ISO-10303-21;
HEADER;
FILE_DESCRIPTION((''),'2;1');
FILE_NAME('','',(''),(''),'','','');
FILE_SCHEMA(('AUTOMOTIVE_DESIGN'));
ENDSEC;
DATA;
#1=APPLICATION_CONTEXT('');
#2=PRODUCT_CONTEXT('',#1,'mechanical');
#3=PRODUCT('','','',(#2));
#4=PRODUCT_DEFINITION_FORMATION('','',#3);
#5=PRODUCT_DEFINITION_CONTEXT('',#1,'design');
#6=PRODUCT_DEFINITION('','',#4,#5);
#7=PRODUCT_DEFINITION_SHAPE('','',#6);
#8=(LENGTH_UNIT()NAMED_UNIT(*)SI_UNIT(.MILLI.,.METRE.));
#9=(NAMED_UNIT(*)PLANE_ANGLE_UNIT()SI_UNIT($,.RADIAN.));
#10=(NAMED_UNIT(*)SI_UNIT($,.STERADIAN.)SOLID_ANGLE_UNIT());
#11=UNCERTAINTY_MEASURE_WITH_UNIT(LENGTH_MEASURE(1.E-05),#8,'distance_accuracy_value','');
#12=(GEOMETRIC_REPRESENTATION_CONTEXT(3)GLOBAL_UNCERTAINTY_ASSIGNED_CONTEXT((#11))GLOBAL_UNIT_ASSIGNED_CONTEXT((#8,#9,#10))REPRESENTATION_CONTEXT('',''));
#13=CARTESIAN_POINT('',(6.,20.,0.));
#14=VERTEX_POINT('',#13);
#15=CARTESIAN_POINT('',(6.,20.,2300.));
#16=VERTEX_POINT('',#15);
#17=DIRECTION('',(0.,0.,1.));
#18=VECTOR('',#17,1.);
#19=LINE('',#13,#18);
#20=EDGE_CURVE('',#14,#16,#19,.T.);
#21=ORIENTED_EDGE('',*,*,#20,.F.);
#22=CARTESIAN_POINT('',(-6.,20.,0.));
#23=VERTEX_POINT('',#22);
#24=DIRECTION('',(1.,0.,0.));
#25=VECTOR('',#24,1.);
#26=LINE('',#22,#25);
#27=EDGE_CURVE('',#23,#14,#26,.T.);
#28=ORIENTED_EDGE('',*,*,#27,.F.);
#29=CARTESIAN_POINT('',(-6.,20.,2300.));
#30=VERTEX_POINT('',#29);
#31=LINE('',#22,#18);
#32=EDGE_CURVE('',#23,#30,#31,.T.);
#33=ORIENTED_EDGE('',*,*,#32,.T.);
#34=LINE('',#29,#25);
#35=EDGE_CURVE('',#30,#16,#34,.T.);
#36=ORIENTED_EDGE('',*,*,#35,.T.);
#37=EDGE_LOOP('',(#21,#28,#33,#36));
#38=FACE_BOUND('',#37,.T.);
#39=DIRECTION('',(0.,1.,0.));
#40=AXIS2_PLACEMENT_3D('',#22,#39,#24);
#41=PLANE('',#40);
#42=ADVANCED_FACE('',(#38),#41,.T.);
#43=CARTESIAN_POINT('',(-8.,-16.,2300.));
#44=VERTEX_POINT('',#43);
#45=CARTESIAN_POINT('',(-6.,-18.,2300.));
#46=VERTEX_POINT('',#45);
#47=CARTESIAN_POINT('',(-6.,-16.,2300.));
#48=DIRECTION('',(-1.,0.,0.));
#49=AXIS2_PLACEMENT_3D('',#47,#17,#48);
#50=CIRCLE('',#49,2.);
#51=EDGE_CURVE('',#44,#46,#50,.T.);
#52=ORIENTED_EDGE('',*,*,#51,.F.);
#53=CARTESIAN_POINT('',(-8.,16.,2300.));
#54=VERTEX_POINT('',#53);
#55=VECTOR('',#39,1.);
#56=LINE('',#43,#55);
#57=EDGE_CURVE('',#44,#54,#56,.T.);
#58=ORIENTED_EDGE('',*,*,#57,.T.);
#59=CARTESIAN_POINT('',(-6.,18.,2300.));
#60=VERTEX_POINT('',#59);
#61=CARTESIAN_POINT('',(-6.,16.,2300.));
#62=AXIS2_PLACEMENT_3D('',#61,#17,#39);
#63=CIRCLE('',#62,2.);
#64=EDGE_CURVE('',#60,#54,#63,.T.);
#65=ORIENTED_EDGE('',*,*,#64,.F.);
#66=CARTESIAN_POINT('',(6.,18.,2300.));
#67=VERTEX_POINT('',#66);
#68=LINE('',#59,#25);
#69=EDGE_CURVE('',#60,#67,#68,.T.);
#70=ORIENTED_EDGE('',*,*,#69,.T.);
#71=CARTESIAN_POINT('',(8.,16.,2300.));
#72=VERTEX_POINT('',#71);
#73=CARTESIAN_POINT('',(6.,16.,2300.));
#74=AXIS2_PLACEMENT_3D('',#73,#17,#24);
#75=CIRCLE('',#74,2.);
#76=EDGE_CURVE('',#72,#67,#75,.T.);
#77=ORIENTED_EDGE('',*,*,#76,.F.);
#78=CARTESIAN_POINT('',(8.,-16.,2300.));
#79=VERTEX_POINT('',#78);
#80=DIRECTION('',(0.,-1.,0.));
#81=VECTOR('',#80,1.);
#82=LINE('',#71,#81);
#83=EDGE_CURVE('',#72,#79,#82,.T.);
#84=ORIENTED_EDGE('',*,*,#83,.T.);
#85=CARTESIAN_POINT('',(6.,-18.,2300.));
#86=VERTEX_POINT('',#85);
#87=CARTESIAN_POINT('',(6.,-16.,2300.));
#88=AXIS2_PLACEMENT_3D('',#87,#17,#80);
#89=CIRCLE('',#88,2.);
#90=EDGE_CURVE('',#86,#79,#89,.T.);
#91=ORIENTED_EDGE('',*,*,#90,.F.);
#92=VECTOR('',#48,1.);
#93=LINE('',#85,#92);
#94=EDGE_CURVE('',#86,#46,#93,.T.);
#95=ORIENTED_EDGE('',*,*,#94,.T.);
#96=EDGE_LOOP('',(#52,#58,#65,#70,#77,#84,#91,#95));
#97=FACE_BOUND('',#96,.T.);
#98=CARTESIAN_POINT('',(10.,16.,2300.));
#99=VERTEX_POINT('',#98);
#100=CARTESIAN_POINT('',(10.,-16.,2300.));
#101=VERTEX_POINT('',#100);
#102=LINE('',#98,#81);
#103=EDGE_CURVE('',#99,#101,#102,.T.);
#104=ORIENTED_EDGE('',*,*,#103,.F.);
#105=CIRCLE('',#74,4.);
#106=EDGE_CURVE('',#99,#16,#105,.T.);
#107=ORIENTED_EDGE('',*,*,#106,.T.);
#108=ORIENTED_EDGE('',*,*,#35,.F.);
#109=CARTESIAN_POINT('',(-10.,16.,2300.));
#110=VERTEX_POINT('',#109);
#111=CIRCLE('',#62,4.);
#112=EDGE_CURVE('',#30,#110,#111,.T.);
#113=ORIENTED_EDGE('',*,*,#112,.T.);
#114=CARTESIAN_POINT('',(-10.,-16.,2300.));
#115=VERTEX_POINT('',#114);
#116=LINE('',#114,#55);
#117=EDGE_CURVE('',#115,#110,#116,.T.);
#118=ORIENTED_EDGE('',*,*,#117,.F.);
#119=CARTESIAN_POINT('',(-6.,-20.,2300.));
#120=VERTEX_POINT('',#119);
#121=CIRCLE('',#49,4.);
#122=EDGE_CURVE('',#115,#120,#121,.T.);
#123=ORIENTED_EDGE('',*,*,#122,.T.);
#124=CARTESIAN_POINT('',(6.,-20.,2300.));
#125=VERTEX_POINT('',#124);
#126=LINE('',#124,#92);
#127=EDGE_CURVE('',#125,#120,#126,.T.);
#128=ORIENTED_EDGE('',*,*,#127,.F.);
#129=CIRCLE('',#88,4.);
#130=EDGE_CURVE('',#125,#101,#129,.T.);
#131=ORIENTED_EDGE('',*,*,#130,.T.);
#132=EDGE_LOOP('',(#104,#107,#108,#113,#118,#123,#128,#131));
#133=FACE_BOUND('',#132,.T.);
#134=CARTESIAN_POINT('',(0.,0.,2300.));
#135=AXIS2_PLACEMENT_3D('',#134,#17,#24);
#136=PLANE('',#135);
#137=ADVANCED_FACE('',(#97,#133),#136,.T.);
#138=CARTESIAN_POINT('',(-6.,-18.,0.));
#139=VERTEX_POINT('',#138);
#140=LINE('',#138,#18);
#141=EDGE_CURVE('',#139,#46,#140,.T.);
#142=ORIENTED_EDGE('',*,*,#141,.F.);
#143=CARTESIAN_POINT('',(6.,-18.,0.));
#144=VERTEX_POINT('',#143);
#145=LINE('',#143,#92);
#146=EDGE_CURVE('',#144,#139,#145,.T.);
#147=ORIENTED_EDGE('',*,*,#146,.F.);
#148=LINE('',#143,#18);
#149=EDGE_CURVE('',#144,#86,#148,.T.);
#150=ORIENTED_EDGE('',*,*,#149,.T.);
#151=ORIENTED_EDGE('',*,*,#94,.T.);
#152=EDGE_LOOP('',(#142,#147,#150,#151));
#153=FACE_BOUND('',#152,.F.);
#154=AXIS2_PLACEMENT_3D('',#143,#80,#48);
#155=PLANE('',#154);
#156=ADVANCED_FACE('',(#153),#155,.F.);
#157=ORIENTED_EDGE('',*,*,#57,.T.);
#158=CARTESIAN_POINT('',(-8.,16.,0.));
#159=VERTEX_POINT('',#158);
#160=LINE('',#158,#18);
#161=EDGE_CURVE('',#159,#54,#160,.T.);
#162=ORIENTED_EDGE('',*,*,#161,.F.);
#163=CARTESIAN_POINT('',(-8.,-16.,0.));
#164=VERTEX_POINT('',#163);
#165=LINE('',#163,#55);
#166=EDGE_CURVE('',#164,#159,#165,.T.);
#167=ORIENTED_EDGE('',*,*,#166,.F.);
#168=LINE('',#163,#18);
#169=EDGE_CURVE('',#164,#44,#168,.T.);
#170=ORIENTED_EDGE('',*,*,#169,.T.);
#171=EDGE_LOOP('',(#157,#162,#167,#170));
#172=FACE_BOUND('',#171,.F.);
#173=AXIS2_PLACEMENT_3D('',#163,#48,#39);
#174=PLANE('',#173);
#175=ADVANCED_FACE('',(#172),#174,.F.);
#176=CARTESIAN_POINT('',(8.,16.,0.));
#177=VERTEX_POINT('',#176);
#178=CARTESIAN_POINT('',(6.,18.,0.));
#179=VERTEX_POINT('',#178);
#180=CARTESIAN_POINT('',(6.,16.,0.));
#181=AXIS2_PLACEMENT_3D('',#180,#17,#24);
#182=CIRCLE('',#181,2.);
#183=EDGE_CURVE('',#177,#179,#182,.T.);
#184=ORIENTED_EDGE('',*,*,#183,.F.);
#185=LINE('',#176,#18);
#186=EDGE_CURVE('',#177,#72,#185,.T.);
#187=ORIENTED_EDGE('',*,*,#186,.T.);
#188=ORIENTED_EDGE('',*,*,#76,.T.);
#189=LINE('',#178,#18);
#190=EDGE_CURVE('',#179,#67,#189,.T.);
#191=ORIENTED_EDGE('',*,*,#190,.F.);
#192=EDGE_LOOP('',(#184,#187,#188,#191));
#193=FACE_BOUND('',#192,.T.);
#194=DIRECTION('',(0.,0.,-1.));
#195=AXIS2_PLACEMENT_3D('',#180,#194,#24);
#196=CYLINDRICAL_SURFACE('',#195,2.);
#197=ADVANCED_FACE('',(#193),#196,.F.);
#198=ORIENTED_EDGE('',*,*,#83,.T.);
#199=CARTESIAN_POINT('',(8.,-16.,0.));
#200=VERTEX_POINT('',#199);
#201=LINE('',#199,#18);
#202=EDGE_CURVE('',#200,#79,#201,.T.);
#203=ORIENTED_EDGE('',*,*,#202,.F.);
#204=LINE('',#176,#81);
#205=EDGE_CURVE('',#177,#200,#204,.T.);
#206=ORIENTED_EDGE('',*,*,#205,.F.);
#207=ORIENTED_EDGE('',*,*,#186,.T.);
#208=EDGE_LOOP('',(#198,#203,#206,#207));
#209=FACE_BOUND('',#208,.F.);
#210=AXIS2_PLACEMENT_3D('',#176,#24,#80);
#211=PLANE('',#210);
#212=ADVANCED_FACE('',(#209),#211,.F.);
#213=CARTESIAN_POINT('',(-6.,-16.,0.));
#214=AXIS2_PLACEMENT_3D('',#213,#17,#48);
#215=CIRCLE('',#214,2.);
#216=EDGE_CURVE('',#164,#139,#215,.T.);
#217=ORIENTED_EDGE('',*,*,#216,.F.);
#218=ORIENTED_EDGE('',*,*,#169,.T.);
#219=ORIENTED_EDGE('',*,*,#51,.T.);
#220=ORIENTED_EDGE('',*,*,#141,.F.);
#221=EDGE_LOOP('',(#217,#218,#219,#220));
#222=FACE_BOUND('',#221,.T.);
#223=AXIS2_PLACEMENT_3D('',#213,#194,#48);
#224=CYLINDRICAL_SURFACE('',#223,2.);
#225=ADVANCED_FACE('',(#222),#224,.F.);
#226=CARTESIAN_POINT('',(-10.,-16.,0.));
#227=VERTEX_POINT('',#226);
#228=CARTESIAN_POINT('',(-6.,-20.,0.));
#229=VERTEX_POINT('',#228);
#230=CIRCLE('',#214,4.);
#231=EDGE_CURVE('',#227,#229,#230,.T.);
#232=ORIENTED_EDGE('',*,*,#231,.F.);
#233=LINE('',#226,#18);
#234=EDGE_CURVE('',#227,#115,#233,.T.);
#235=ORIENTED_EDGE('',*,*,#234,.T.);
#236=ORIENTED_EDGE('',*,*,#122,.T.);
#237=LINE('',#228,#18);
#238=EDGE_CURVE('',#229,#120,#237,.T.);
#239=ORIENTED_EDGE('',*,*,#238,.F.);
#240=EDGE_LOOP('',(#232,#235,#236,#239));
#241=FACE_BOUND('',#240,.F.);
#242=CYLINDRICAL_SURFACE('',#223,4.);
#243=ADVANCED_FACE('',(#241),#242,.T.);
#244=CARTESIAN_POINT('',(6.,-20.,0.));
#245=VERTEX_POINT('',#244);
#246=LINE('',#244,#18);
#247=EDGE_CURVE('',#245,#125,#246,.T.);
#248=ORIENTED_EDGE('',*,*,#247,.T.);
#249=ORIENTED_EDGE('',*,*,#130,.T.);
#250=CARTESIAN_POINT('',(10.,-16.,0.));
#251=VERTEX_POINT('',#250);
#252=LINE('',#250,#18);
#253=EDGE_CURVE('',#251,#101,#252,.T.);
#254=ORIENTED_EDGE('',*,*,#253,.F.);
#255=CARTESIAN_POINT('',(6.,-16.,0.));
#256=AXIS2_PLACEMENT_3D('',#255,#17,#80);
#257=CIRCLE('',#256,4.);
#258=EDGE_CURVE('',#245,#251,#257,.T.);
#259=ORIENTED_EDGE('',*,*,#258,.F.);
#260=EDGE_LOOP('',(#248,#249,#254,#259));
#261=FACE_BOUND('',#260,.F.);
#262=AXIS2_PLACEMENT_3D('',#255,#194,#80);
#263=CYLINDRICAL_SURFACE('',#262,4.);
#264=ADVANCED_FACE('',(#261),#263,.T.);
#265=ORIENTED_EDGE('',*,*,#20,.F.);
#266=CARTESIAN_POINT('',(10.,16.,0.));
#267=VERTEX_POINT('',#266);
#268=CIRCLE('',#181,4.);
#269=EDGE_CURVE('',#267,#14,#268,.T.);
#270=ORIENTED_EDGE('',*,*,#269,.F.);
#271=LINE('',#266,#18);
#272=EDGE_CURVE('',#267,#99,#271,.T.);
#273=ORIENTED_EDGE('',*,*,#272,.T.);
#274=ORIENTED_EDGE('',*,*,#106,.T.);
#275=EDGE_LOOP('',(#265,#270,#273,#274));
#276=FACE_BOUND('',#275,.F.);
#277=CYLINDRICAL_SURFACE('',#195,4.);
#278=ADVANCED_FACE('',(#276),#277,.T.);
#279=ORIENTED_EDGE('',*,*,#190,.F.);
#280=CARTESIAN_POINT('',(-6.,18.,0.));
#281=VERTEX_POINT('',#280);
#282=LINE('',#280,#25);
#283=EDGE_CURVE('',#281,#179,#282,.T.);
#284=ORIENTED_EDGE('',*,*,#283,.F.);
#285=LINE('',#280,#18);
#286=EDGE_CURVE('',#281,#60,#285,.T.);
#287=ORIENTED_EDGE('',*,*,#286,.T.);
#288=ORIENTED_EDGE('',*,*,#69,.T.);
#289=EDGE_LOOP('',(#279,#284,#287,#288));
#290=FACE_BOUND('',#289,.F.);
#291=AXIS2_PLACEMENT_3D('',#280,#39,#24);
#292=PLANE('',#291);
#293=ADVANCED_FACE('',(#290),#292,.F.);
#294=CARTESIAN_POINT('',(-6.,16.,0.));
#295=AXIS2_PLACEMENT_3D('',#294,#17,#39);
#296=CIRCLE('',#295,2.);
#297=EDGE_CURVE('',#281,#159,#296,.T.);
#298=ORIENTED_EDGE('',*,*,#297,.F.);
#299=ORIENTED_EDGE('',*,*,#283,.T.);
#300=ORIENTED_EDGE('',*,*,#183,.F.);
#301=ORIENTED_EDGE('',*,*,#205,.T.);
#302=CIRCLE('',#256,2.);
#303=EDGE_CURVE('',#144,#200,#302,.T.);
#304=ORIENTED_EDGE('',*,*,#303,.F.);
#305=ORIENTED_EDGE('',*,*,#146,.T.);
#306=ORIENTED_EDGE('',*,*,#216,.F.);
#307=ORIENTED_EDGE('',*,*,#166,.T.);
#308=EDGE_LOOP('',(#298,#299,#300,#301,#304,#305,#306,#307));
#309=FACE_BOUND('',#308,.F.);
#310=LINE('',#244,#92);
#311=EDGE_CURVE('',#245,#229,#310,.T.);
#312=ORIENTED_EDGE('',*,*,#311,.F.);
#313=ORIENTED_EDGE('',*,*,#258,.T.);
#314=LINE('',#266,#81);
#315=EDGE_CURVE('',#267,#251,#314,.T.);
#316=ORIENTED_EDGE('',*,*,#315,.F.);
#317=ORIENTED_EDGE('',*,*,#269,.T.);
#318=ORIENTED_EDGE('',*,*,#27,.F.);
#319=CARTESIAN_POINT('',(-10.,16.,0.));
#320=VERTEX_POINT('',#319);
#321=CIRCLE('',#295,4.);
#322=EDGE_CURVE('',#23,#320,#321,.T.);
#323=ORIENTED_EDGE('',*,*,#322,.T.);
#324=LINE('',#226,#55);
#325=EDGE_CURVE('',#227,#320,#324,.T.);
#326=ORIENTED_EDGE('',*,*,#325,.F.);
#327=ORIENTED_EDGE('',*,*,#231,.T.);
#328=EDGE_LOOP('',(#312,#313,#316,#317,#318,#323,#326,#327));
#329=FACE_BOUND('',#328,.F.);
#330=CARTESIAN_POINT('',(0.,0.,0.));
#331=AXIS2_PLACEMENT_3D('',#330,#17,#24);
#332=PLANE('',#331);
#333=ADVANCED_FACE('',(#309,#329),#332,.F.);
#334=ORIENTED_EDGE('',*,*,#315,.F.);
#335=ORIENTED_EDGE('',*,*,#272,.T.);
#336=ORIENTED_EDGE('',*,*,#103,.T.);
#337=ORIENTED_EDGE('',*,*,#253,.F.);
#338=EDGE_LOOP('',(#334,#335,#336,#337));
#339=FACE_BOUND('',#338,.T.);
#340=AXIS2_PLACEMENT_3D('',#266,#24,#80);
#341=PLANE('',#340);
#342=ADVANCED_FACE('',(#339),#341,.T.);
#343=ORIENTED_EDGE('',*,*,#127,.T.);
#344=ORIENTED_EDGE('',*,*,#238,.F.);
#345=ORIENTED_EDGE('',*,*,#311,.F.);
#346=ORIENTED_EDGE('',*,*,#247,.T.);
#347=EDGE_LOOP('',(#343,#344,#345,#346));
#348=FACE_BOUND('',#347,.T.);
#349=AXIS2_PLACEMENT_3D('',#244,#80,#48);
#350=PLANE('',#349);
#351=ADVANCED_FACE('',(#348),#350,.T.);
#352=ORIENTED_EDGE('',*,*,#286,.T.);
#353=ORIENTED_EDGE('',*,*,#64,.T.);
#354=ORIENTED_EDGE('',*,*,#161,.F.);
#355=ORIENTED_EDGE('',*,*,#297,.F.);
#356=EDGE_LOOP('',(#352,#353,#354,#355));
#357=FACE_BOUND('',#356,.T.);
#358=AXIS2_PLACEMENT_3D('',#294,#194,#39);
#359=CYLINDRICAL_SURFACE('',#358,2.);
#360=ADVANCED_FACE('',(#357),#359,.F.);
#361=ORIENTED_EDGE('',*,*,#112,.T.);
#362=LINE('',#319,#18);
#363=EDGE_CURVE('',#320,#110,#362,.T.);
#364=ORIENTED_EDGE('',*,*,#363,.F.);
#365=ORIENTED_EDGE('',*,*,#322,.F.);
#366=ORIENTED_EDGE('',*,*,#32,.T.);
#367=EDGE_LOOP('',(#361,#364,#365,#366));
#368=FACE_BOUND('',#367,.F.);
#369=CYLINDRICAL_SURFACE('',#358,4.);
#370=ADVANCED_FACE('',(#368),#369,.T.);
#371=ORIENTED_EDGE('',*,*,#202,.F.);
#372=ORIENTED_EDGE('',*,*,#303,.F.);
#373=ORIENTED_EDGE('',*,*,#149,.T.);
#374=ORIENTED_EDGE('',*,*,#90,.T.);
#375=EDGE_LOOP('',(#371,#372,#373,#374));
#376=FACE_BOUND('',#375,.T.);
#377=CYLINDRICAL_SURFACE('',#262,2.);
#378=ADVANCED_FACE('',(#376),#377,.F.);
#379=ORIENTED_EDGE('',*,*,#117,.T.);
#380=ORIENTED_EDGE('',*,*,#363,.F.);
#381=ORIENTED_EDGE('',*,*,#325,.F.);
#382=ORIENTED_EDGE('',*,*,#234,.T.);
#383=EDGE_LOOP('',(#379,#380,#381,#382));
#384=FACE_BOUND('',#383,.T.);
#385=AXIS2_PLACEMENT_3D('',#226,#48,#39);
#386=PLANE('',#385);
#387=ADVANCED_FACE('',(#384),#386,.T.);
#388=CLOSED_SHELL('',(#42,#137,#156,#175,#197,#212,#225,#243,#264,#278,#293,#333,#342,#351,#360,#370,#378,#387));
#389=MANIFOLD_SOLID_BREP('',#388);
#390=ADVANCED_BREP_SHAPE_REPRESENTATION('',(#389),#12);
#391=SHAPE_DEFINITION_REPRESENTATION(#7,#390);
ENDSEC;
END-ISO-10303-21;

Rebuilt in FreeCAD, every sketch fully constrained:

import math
import FreeCAD as App
import Part
import Sketcher

V = App.Vector
Q = App.Units.Quantity

doc = App.newDocument("Part")
body = doc.addObject("PartDesign::Body", "Body")

sketch1 = body.newObject("Sketcher::SketchObject", "Sketch")
sketch1.AttachmentSupport = (doc.getObject("XY_Plane"), [""])
sketch1.MapMode = "FlatFace"
sketch1.addGeometry(Part.LineSegment(V(-10, 16, 0), V(-10, -16, 0)), False)
sketch1.addGeometry(Part.ArcOfCircle(Part.Circle(V(-6, -16, 0), V(0, 0, 1), 4), math.radians(180), math.radians(270)), False)
sketch1.addGeometry(Part.LineSegment(V(-6, -20, 0), V(6, -20, 0)), False)
sketch1.addGeometry(Part.ArcOfCircle(Part.Circle(V(6, -16, 0), V(0, 0, 1), 4), math.radians(-90), math.radians(0)), False)
sketch1.addGeometry(Part.LineSegment(V(10, -16, 0), V(10, 16, 0)), False)
sketch1.addGeometry(Part.ArcOfCircle(Part.Circle(V(6, 16, 0), V(0, 0, 1), 4), math.radians(0), math.radians(90)), False)
sketch1.addGeometry(Part.LineSegment(V(6, 20, 0), V(-6, 20, 0)), False)
sketch1.addGeometry(Part.ArcOfCircle(Part.Circle(V(-6, 16, 0), V(0, 0, 1), 4), math.radians(90), math.radians(180)), False)
sketch1.addGeometry(Part.ArcOfCircle(Part.Circle(V(-6, 16, 0), V(0, 0, 1), 2), math.radians(90), math.radians(180)), False)
sketch1.addGeometry(Part.LineSegment(V(-6, 18, 0), V(6, 18, 0)), False)
sketch1.addGeometry(Part.ArcOfCircle(Part.Circle(V(6, 16, 0), V(0, 0, 1), 2), math.radians(0), math.radians(90)), False)
sketch1.addGeometry(Part.LineSegment(V(8, 16, 0), V(8, -16, 0)), False)
sketch1.addGeometry(Part.ArcOfCircle(Part.Circle(V(6, -16, 0), V(0, 0, 1), 2), math.radians(-90), math.radians(0)), False)
sketch1.addGeometry(Part.LineSegment(V(6, -18, 0), V(-6, -18, 0)), False)
sketch1.addGeometry(Part.ArcOfCircle(Part.Circle(V(-6, -16, 0), V(0, 0, 1), 2), math.radians(180), math.radians(270)), False)
sketch1.addGeometry(Part.LineSegment(V(-8, -16, 0), V(-8, 16, 0)), False)
sketch1.addConstraint(Sketcher.Constraint("Tangent", 0, 2, 1, 1))
sketch1.addConstraint(Sketcher.Constraint("Tangent", 1, 2, 2, 1))
sketch1.addConstraint(Sketcher.Constraint("Tangent", 2, 2, 3, 1))
sketch1.addConstraint(Sketcher.Constraint("Tangent", 3, 2, 4, 1))
sketch1.addConstraint(Sketcher.Constraint("Tangent", 4, 2, 5, 1))
sketch1.addConstraint(Sketcher.Constraint("Tangent", 5, 2, 6, 1))
sketch1.addConstraint(Sketcher.Constraint("Tangent", 6, 2, 7, 1))
sketch1.addConstraint(Sketcher.Constraint("Tangent", 7, 2, 0, 1))
sketch1.addConstraint(Sketcher.Constraint("Tangent", 8, 1, 9, 1))
sketch1.addConstraint(Sketcher.Constraint("Tangent", 9, 2, 10, 2))
sketch1.addConstraint(Sketcher.Constraint("Tangent", 10, 1, 11, 1))
sketch1.addConstraint(Sketcher.Constraint("Tangent", 11, 2, 12, 2))
sketch1.addConstraint(Sketcher.Constraint("Tangent", 12, 1, 13, 1))
sketch1.addConstraint(Sketcher.Constraint("Tangent", 13, 2, 14, 2))
sketch1.addConstraint(Sketcher.Constraint("Tangent", 14, 1, 15, 1))
sketch1.addConstraint(Sketcher.Constraint("Tangent", 15, 2, 8, 2))
sketch1.addConstraint(Sketcher.Constraint("Vertical", 0))
sketch1.addConstraint(Sketcher.Constraint("Horizontal", 2))
sketch1.addConstraint(Sketcher.Constraint("Vertical", 4))
sketch1.addConstraint(Sketcher.Constraint("Horizontal", 6))
sketch1.addConstraint(Sketcher.Constraint("Horizontal", 9))
sketch1.addConstraint(Sketcher.Constraint("Vertical", 11))
sketch1.addConstraint(Sketcher.Constraint("Horizontal", 13))
sketch1.addConstraint(Sketcher.Constraint("Vertical", 15))
sketch1.addConstraint(Sketcher.Constraint("Coincident", 8, 3, 7, 3))
sketch1.addConstraint(Sketcher.Constraint("Coincident", 10, 3, 5, 3))
sketch1.addConstraint(Sketcher.Constraint("Coincident", 12, 3, 3, 3))
sketch1.addConstraint(Sketcher.Constraint("Equal", 1, 3))
sketch1.addConstraint(Sketcher.Constraint("Equal", 3, 5))
sketch1.addConstraint(Sketcher.Constraint("Equal", 5, 7))
sketch1.addConstraint(Sketcher.Constraint("Equal", 12, 14))
sketch1.addConstraint(Sketcher.Constraint("Symmetric", 1, 3, 5, 3, -1, 1))
sketch1.addConstraint(Sketcher.Constraint("Radius", 1, Q("4 mm")))
sketch1.addConstraint(Sketcher.Constraint("Radius", 8, Q("2 mm")))
sketch1.addConstraint(Sketcher.Constraint("DistanceX", 0, 2, -1, 1, Q("10 mm")))
sketch1.addConstraint(Sketcher.Constraint("DistanceY", 1, 2, -1, 1, Q("20 mm")))
pad1 = body.newObject("PartDesign::Pad", "Pad")
pad1.Profile = sketch1
pad1.Length = 2300

doc.recompute()
